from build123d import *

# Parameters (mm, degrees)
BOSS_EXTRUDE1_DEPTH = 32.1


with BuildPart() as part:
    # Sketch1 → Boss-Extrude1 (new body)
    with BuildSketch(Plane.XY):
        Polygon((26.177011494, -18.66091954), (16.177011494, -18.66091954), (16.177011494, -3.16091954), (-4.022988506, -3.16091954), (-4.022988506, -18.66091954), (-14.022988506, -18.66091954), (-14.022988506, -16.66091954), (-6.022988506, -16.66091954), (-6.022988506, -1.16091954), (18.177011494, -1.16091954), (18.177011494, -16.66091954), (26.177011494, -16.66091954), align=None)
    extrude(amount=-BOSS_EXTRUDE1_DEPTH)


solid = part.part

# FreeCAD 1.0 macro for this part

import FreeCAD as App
import Part
import Sketcher

V = App.Vector
Q = App.Units.Quantity

doc = App.newDocument("Part")
body = doc.addObject("PartDesign::Body", "Body")

sketch1 = doc.addObject("Sketcher::SketchObject", "Sketch")
body.addObject(sketch1)
sketch1.AttachmentSupport = (doc.XY_Plane, [""])
sketch1.MapMode = "FlatFace"
sketch1.addGeometry([
    Part.LineSegment(V(16.177011, -18.66092, 0), V(26.177011, -18.66092, 0)),
    Part.LineSegment(V(26.177011, -18.66092, 0), V(26.177011, -16.66092, 0)),
    Part.LineSegment(V(26.177011, -16.66092, 0), V(18.177011, -16.66092, 0)),
    Part.LineSegment(V(18.177011, -16.66092, 0), V(18.177011, -1.16092, 0)),
    Part.LineSegment(V(18.177011, -1.16092, 0), V(-6.022989, -1.16092, 0)),
    Part.LineSegment(V(-6.022989, -1.16092, 0), V(-6.022989, -16.66092, 0)),
    Part.LineSegment(V(-6.022989, -16.66092, 0), V(-14.022989, -16.66092, 0)),
    Part.LineSegment(V(-14.022989, -16.66092, 0), V(-14.022989, -18.66092, 0)),
    Part.LineSegment(V(-14.022989, -18.66092, 0), V(-4.022989, -18.66092, 0)),
    Part.LineSegment(V(-4.022989, -18.66092, 0), V(-4.022989, -3.16092, 0)),
    Part.LineSegment(V(-4.022989, -3.16092, 0), V(16.177011, -3.16092, 0)),
    Part.LineSegment(V(16.177011, -3.16092, 0), V(16.177011, -18.66092, 0)),
], False)
sketch1.addConstraint([
    Sketcher.Constraint("Coincident", 0, 2, 1, 1),
    Sketcher.Constraint("Coincident", 1, 2, 2, 1),
    Sketcher.Constraint("Coincident", 2, 2, 3, 1),
    Sketcher.Constraint("Coincident", 3, 2, 4, 1),
    Sketcher.Constraint("Coincident", 4, 2, 5, 1),
    Sketcher.Constraint("Coincident", 5, 2, 6, 1),
    Sketcher.Constraint("Coincident", 6, 2, 7, 1),
    Sketcher.Constraint("Coincident", 7, 2, 8, 1),
    Sketcher.Constraint("Coincident", 8, 2, 9, 1),
    Sketcher.Constraint("Coincident", 9, 2, 10, 1),
    Sketcher.Constraint("Coincident", 10, 2, 11, 1),
    Sketcher.Constraint("Coincident", 11, 2, 0, 1),
    Sketcher.Constraint("Horizontal", 0),
    Sketcher.Constraint("Vertical", 1),
    Sketcher.Constraint("Horizontal", 2),
    Sketcher.Constraint("Vertical", 3),
    Sketcher.Constraint("Horizontal", 4),
    Sketcher.Constraint("Vertical", 5),
    Sketcher.Constraint("Horizontal", 6),
    Sketcher.Constraint("Vertical", 7),
    Sketcher.Constraint("Horizontal", 8),
    Sketcher.Constraint("Vertical", 9),
    Sketcher.Constraint("Horizontal", 10),
    Sketcher.Constraint("Vertical", 11),
    Sketcher.Constraint("Horizontal", 2, 2, 5, 2),
    Sketcher.Constraint("Horizontal", 0, 2, 7, 2),
    Sketcher.Constraint("Equal", 2, 6),
    Sketcher.Constraint("Equal", 0, 8),
    Sketcher.Constraint("Equal", 5, 9),
    Sketcher.Constraint("DistanceX", 0, 1, 0, 2, Q("10 mm")),
    Sketcher.Constraint("DistanceX", 2, 2, 2, 1, Q("8 mm")),
    Sketcher.Constraint("DistanceY", 1, 1, 1, 2, Q("2 mm")),
    Sketcher.Constraint("DistanceX", 4, 2, 4, 1, Q("24.2 mm")),
    Sketcher.Constraint("DistanceY", 3, 1, 3, 2, Q("15.5 mm")),
    Sketcher.Constraint("DistanceX", -1, 1, 0, 2, Q("26.177011 mm")),
    Sketcher.Constraint("DistanceY", 0, 2, -1, 1, Q("18.66092 mm")),
])
pad1 = doc.addObject("PartDesign::Pad", "Pad")
body.addObject(pad1)
pad1.Profile = sketch1
pad1.Length = 32.1
pad1.Reversed = True

doc.recompute()
